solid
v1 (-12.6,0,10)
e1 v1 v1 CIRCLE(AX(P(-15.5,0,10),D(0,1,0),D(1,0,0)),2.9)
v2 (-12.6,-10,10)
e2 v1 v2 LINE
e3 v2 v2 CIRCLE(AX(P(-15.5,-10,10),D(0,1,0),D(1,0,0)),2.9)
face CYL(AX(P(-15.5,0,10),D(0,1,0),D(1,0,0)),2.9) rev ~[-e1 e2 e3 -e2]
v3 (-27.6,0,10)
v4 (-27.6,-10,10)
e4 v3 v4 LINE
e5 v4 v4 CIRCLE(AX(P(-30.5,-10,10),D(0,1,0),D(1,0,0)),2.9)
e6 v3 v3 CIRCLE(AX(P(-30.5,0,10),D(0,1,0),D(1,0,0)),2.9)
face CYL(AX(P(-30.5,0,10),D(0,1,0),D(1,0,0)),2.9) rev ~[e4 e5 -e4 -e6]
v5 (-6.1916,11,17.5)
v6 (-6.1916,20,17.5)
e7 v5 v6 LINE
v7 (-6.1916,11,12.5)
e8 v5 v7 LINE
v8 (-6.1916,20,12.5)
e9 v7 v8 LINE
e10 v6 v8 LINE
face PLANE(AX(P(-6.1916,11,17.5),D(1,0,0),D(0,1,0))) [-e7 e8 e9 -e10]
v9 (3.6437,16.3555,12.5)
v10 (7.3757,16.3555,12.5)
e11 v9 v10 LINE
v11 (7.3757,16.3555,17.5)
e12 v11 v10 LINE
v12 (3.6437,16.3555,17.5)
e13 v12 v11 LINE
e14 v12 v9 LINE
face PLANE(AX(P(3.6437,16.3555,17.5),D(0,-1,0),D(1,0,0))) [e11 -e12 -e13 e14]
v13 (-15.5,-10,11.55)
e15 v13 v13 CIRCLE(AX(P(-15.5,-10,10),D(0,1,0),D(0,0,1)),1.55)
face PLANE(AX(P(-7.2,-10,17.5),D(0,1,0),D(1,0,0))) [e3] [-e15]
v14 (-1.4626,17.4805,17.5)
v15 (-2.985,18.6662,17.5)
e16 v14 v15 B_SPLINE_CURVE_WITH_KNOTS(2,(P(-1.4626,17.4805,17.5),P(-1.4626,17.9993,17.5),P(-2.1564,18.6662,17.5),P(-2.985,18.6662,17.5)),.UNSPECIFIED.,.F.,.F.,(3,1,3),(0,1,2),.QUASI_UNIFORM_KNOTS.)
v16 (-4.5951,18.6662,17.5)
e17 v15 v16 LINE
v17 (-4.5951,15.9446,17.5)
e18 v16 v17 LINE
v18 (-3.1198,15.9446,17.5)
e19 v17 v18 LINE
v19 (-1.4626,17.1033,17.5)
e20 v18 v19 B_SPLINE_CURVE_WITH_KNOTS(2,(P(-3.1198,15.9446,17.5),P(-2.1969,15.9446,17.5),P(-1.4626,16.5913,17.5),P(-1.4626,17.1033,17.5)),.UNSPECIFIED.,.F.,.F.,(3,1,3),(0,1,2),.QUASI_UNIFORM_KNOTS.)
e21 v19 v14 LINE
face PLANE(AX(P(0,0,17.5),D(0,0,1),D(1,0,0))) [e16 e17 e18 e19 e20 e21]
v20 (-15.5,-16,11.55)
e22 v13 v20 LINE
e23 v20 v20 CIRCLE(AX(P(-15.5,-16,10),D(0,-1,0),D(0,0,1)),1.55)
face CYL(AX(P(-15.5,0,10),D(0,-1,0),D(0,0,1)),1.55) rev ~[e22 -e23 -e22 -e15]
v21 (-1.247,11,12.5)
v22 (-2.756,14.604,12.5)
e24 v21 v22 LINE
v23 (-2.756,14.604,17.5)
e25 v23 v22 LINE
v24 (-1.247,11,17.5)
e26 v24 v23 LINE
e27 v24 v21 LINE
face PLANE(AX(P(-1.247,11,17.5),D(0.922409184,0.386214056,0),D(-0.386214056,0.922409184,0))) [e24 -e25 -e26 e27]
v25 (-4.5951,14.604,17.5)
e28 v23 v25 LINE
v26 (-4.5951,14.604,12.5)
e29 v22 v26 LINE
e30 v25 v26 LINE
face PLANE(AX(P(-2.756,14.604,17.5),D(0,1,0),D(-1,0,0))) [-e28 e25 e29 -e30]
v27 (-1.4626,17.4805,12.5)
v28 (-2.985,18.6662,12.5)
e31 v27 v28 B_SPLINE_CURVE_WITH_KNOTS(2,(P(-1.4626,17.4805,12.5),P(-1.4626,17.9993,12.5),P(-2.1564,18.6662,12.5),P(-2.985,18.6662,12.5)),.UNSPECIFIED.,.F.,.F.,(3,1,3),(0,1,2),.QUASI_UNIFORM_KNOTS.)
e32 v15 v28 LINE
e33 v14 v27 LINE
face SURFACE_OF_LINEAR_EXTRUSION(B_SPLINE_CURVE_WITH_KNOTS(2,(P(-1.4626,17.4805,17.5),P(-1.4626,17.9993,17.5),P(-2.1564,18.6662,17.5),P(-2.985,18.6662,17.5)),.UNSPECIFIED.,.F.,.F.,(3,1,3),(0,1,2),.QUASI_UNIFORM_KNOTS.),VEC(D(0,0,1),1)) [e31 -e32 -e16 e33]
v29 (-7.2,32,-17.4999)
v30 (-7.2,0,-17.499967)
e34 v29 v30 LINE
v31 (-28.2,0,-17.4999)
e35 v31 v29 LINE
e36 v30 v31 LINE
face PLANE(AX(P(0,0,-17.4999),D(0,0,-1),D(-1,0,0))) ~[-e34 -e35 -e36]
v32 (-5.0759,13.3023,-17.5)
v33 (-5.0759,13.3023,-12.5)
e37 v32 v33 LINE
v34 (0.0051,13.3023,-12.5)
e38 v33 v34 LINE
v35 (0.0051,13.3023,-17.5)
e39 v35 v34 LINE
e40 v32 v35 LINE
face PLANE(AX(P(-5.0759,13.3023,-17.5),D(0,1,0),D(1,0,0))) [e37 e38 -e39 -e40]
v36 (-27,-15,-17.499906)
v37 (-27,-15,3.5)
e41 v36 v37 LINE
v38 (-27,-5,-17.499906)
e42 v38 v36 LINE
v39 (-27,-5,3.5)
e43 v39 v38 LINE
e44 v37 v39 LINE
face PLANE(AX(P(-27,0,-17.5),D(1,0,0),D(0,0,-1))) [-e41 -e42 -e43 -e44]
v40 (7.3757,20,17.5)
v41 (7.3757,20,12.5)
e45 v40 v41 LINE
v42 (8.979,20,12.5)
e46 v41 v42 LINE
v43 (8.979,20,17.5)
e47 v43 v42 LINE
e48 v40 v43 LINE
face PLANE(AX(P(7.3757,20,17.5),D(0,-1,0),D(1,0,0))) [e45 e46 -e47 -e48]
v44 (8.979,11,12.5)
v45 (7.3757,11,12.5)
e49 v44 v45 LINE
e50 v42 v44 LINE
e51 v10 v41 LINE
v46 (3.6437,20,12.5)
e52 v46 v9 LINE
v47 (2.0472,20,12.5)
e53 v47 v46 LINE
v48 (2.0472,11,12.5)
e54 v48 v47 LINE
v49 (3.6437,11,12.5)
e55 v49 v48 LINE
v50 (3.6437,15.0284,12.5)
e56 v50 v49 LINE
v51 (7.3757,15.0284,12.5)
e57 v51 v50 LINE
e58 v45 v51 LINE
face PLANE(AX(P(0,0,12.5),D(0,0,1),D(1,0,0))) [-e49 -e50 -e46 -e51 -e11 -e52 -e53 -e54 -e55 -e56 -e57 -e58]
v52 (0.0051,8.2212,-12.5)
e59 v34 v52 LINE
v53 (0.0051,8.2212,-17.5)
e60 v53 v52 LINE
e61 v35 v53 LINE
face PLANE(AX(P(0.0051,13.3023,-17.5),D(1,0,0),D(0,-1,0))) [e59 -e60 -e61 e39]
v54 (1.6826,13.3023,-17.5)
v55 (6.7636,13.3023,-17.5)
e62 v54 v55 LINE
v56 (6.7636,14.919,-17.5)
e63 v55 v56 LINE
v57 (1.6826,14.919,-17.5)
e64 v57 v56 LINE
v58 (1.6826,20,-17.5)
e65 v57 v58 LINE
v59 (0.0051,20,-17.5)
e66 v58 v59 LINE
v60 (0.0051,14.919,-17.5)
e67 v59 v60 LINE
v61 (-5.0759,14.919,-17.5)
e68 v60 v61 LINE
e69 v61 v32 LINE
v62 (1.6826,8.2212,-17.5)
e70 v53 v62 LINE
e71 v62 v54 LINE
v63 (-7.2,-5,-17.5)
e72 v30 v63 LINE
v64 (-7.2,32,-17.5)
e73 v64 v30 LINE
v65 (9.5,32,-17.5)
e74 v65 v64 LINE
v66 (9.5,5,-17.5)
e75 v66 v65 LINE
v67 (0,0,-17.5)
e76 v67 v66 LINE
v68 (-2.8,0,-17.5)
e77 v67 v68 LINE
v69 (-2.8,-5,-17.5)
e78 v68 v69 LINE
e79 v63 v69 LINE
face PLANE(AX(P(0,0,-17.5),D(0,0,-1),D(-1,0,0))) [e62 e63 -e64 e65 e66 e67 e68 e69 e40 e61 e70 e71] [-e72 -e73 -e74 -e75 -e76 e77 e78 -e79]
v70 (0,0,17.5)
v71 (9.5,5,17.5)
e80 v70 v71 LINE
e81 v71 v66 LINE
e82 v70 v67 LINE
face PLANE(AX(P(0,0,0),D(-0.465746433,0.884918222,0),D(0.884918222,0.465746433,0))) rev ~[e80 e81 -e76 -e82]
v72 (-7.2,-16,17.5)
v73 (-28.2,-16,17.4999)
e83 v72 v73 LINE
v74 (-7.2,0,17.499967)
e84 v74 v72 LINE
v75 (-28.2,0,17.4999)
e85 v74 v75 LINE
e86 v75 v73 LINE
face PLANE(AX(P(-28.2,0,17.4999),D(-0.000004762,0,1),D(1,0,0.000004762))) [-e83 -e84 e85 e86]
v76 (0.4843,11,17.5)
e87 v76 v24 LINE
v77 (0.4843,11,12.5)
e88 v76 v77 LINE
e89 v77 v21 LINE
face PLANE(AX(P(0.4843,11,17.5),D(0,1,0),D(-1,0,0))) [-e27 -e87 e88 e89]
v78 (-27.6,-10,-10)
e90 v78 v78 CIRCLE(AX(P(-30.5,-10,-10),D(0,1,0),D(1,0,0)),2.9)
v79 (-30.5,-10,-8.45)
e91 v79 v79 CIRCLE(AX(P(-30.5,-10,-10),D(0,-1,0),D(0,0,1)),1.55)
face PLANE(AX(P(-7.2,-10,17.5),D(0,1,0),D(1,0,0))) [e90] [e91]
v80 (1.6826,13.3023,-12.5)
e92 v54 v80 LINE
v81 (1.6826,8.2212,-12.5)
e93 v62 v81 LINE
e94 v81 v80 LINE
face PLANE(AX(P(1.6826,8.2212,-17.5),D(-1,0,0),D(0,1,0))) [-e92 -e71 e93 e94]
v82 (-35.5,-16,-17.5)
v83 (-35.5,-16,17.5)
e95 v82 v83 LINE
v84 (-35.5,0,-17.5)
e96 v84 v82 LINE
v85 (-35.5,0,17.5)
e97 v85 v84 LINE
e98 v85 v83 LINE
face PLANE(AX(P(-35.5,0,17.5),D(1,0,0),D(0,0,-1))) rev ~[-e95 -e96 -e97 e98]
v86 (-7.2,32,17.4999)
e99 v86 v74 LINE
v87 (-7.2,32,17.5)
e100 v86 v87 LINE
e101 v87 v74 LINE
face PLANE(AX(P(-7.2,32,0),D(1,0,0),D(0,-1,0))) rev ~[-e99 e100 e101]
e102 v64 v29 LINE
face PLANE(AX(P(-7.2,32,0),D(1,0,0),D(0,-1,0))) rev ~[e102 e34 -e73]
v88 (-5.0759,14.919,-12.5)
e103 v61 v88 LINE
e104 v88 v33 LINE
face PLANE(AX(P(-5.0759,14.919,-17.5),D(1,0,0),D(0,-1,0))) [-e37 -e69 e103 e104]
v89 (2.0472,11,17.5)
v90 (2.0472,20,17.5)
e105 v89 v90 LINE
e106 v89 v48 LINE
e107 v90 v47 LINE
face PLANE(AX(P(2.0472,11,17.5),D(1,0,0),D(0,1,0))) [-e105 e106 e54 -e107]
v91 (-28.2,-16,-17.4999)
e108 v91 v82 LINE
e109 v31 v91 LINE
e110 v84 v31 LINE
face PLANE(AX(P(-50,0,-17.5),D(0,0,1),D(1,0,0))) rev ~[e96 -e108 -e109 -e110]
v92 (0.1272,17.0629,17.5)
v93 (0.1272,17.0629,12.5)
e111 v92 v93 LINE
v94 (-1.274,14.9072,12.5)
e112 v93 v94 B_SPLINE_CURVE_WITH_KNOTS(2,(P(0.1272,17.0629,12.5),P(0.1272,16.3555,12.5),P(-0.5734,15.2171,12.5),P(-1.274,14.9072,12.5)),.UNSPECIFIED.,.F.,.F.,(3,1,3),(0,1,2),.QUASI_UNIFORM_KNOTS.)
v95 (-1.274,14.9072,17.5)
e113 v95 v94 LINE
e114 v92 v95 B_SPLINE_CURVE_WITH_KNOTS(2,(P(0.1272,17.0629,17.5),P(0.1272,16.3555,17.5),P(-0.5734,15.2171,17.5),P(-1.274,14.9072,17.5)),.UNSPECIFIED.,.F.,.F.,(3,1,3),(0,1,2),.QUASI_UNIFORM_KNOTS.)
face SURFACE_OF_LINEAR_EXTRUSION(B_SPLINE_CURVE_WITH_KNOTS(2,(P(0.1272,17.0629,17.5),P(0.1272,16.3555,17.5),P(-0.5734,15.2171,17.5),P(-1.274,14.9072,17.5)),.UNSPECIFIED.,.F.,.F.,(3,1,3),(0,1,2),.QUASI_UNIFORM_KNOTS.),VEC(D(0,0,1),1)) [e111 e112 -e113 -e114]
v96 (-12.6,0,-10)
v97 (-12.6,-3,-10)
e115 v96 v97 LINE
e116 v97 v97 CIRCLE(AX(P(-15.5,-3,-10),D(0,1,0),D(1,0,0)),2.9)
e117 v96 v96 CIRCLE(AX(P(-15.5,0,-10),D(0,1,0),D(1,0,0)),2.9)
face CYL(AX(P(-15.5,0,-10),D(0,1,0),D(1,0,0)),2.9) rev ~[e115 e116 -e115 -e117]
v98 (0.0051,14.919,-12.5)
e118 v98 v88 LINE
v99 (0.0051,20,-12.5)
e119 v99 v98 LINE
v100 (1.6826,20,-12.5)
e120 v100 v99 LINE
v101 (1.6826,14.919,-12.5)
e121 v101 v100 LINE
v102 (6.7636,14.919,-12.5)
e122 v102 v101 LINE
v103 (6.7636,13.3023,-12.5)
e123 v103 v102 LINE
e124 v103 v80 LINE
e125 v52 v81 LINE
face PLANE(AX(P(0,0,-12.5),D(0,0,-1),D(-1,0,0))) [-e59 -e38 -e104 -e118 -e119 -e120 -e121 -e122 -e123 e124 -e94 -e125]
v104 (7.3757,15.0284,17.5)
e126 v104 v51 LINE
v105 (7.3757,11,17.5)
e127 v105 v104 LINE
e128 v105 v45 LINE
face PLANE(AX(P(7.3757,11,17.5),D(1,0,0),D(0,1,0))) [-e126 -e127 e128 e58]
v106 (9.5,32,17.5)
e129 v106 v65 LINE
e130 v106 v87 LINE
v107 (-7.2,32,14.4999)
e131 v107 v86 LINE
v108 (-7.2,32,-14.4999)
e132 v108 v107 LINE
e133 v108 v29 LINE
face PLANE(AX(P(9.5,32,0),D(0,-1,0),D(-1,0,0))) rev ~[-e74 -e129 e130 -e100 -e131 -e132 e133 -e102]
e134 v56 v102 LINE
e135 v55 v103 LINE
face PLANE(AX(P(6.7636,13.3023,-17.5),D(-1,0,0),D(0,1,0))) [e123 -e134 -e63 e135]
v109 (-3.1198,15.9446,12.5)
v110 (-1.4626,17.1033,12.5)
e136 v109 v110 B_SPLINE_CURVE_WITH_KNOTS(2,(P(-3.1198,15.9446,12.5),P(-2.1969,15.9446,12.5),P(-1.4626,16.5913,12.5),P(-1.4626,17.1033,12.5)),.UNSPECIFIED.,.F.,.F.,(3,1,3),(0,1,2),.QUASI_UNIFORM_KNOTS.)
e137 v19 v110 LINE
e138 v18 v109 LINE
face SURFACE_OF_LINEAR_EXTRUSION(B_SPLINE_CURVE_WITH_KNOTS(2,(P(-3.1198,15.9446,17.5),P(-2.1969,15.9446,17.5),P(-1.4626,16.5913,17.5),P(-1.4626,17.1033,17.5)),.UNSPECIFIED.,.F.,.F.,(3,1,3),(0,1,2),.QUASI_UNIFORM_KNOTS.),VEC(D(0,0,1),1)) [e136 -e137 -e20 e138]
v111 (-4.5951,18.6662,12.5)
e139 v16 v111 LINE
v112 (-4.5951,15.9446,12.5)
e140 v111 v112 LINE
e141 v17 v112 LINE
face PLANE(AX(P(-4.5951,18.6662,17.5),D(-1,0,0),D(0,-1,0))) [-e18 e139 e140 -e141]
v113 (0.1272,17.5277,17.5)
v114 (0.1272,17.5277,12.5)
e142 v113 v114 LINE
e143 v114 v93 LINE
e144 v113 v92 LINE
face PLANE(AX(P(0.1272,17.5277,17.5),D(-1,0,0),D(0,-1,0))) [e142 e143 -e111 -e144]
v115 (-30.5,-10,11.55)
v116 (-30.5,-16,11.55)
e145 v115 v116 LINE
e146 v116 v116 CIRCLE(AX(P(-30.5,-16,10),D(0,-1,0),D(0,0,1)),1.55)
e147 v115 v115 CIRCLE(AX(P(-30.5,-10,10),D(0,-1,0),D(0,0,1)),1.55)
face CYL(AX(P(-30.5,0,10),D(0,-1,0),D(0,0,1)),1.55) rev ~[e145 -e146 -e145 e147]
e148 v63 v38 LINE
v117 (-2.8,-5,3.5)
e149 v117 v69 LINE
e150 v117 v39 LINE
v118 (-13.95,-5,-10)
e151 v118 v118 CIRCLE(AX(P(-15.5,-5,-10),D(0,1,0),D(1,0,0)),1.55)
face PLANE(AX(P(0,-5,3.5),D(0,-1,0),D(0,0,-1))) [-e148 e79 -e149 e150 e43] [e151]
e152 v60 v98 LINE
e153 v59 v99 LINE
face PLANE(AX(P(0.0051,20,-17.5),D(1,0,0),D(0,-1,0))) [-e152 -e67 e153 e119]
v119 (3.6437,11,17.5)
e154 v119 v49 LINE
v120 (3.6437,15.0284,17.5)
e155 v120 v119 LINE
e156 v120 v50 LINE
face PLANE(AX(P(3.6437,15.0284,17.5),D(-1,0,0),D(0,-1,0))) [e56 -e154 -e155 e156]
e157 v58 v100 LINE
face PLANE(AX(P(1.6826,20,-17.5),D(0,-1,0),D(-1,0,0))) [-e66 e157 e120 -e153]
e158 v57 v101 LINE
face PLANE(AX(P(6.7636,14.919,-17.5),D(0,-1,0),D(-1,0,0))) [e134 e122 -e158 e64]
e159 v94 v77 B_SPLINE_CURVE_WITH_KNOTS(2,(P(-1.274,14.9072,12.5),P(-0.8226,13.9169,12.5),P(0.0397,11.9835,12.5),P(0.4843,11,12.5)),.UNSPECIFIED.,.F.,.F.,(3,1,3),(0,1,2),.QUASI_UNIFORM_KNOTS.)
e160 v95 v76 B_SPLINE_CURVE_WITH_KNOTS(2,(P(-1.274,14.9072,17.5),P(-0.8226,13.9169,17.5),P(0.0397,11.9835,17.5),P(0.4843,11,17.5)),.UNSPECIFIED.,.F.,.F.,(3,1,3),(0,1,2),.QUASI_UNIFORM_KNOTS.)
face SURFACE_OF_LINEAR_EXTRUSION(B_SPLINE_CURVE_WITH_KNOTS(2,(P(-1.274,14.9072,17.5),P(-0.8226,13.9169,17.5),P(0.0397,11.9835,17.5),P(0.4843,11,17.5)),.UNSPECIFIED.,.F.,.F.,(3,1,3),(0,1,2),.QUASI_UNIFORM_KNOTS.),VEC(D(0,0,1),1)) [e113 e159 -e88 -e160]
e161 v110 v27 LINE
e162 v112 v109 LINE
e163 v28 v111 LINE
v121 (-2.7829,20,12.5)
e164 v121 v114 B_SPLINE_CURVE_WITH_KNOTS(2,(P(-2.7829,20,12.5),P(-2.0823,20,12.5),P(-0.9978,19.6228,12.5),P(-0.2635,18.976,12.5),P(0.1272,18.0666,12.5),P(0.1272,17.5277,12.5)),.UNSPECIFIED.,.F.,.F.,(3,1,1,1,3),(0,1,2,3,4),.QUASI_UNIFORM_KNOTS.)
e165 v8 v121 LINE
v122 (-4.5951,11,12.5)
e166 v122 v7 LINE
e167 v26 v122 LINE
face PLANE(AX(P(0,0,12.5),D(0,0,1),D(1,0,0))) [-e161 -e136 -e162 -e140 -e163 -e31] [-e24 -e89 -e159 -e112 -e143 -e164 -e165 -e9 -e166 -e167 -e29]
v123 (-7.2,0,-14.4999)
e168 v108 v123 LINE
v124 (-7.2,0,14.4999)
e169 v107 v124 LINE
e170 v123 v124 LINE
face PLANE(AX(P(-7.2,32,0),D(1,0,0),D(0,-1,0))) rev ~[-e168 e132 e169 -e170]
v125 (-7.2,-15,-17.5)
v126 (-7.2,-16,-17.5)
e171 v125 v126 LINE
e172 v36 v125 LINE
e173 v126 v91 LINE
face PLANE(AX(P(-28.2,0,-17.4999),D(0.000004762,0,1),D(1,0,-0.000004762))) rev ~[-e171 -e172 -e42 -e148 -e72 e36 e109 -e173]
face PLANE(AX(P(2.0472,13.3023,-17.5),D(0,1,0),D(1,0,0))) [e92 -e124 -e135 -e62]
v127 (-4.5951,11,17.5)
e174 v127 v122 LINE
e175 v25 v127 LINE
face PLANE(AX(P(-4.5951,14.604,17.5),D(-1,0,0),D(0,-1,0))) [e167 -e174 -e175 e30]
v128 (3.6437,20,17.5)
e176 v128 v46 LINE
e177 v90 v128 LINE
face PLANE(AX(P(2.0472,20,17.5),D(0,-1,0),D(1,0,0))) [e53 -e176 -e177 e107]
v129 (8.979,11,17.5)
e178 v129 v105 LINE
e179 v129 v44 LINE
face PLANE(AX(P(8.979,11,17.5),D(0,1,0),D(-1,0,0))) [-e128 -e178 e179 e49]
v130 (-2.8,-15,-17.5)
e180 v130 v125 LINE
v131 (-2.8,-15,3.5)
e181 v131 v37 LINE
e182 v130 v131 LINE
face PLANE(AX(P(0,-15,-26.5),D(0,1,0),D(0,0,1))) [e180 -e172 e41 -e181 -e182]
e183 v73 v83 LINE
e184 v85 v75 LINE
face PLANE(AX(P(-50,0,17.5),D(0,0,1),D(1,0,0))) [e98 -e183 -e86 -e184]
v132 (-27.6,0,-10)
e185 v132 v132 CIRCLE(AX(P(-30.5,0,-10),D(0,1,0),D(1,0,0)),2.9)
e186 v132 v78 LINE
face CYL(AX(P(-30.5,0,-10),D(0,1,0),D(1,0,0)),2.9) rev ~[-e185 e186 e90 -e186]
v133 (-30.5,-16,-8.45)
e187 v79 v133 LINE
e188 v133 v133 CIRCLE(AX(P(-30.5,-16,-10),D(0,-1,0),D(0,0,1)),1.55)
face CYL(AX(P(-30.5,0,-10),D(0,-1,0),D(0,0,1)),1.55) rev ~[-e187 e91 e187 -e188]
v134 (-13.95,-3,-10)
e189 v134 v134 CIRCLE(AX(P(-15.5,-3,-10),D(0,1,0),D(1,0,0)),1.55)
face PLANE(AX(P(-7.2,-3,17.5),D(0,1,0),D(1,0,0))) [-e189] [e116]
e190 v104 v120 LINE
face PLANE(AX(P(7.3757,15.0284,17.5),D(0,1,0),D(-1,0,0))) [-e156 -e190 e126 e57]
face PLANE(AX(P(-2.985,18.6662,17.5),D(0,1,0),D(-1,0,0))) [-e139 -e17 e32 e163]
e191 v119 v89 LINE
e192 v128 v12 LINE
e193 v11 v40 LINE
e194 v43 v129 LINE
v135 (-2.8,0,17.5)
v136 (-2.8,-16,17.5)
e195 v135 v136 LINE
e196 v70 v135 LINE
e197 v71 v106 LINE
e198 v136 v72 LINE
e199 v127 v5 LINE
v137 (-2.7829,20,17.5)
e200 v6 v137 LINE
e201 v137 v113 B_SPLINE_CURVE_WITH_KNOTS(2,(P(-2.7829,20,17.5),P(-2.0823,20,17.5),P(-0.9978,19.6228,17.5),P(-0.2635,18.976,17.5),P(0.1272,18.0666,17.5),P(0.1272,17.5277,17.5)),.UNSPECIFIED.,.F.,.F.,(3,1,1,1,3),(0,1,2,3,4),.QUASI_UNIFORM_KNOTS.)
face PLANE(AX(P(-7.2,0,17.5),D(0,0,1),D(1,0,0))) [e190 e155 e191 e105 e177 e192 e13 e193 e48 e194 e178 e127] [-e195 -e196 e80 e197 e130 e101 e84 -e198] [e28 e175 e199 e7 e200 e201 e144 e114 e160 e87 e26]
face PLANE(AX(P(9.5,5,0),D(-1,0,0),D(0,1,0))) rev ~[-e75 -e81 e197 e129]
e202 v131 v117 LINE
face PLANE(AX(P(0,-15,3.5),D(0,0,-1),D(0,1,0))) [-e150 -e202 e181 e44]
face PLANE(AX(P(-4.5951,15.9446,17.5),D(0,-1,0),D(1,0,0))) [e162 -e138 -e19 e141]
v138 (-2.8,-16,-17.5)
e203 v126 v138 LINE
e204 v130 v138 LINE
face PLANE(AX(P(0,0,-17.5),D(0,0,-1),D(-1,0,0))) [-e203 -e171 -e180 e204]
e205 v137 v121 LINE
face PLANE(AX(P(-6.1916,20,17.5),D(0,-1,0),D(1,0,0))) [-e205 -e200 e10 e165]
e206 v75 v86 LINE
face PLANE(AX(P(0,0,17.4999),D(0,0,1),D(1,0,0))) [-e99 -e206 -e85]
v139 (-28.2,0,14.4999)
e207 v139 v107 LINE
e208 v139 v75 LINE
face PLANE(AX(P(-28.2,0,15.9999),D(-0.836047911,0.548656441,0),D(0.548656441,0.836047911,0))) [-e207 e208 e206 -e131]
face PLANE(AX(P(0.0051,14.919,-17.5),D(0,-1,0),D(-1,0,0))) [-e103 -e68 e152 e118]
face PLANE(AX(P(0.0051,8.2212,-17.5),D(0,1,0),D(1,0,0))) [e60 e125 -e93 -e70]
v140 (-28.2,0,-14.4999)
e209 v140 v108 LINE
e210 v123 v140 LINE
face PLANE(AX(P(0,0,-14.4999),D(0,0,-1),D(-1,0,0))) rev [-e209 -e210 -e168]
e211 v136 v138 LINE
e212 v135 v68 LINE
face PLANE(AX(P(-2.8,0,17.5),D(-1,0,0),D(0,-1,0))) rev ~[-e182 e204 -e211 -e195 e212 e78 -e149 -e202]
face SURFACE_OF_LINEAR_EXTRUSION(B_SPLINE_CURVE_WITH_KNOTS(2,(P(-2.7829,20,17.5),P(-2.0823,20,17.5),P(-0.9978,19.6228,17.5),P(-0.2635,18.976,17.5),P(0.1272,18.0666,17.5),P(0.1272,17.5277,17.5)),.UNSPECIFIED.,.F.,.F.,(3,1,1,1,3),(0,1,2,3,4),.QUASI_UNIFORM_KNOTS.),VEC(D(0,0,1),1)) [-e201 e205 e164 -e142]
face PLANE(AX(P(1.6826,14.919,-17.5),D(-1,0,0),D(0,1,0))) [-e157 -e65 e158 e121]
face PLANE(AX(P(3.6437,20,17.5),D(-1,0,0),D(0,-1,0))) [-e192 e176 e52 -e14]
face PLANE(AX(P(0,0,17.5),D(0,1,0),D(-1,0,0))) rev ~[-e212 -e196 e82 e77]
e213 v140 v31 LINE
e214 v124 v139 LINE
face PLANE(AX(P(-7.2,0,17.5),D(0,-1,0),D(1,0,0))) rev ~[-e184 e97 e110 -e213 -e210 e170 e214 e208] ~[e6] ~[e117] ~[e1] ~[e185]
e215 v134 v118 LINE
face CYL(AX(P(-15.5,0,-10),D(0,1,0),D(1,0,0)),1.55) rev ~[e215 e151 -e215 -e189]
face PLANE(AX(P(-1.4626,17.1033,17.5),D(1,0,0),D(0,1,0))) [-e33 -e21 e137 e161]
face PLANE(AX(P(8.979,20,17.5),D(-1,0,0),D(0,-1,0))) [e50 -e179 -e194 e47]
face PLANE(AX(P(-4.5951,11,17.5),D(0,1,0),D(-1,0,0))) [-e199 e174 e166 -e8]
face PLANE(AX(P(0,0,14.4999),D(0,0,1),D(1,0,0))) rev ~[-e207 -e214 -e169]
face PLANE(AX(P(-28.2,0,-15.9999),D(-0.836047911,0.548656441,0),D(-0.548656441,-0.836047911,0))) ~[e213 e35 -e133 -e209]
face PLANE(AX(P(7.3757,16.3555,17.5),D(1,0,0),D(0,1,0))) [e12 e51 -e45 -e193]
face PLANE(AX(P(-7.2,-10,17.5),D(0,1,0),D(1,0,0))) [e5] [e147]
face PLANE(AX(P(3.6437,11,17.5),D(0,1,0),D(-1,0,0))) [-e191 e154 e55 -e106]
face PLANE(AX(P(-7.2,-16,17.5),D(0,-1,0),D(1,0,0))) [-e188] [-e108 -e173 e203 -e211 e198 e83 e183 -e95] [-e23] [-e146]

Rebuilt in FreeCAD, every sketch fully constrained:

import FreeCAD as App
import Part
import Sketcher
from FreeCAD import Vector
Q = App.Units.Quantity

doc = App.newDocument("Part")
body = doc.addObject("PartDesign::Body", "Body")

sketch1 = doc.addObject("Sketcher::SketchObject", "Sketch")
body.addObject(sketch1)
sketch1.AttachmentSupport = (doc.XY_Plane, [""])
sketch1.MapMode = "FlatFace"
sketch1.addGeometry([
    Part.LineSegment(Vector(10, 32, 0), Vector(-7, 32, 0)),
    Part.LineSegment(Vector(-7, 32, 0), Vector(-7, 0, 0)),
    Part.LineSegment(Vector(-7, 0, 0), Vector(0, 0, 0)),
    Part.LineSegment(Vector(0, 0, 0), Vector(10, 5, 0)),
    Part.LineSegment(Vector(10, 5, 0), Vector(10, 32, 0)),
], False)
sketch1.addConstraint([
    Sketcher.Constraint("Coincident", 0, 2, 1, 1),
    Sketcher.Constraint("Coincident", 1, 2, 2, 1),
    Sketcher.Constraint("Coincident", 2, 2, 3, 1),
    Sketcher.Constraint("Coincident", 3, 2, 4, 1),
    Sketcher.Constraint("Coincident", 4, 2, 0, 1),
    Sketcher.Constraint("Horizontal", 0),
    Sketcher.Constraint("Vertical", 1),
    Sketcher.Constraint("Horizontal", 2),
    Sketcher.Constraint("Vertical", 4),
    Sketcher.Constraint("Coincident", 2, 2, -1, 1),
    Sketcher.Constraint("DistanceY", 1, 2, 1, 1, Q("32 mm")),
    Sketcher.Constraint("DistanceY", 4, 1, 4, 2, Q("27 mm")),
    Sketcher.Constraint("DistanceX", 2, 1, 2, 2, Q("7.2 mm")),
    Sketcher.Constraint("DistanceX", -1, 1, 3, 2, Q("9.5 mm")),
])
pad1 = doc.addObject("PartDesign::Pad", "Pad")
body.addObject(pad1)
pad1.Profile = sketch1
pad1.Length = 35
pad1.Midplane = True

sketch2 = doc.addObject("Sketcher::SketchObject", "Sketch001")
body.addObject(sketch2)
sketch2.AttachmentSupport = (doc.XY_Plane, [""])
sketch2.MapMode = "FlatFace"
sketch2.AttachmentOffset = App.Placement(Vector(0, 0, 15.9999), App.Rotation())
sketch2.addGeometry([
    Part.LineSegment(Vector(-7, 0, 0), Vector(-7, 32, 0)),
    Part.LineSegment(Vector(-7, 32, 0), Vector(-28, 0, 0)),
    Part.LineSegment(Vector(-28, 0, 0), Vector(-7, 0, 0)),
], False)
sketch2.addConstraint([
    Sketcher.Constraint("Coincident", 0, 2, 1, 1),
    Sketcher.Constraint("Coincident", 1, 2, 2, 1),
    Sketcher.Constraint("Coincident", 2, 2, 0, 1),
    Sketcher.Constraint("Vertical", 0),
    Sketcher.Constraint("Horizontal", 2),
    Sketcher.Constraint("PointOnObject", 1, 2, -1),
    Sketcher.Constraint("DistanceX", 2, 1, 2, 2, Q("21 mm")),
    Sketcher.Constraint("DistanceY", 0, 1, 0, 2, Q("32 mm")),
    Sketcher.Constraint("DistanceX", 0, 2, -1, 1, Q("7.2 mm")),
])
pad2 = doc.addObject("PartDesign::Pad", "Pad001")
body.addObject(pad2)
pad2.Profile = sketch2
pad2.Length = 3
pad2.Midplane = True
doc.recompute()

mirrored = doc.addObject("PartDesign::Mirrored", "Mirrored")
body.addObject(mirrored)
mirrored.Originals = [pad2]
mirrored.MirrorPlane = (doc.XY_Plane, [""])
body.Tip = mirrored

sketch3 = doc.addObject("Sketcher::SketchObject", "Sketch002")
body.addObject(sketch3)
sketch3.AttachmentSupport = (doc.XZ_Plane, [""])
sketch3.MapMode = "FlatFace"
sketch3.addGeometry([
    Part.LineSegment(Vector(-25, 28, 0), Vector(-50, 20, 0)),
    Part.LineSegment(Vector(-50, 20, 0), Vector(-50, -20, 0)),
    Part.LineSegment(Vector(-50, -20, 0), Vector(-25, -28, 0)),
    Part.LineSegment(Vector(-25, -28, 0), Vector(0, -28, 0)),
    Part.LineSegment(Vector(0, -28, 0), Vector(0, 28, 0)),
    Part.LineSegment(Vector(0, 28, 0), Vector(-25, 28, 0)),
], False)
sketch3.addConstraint([
    Sketcher.Constraint("Coincident", 0, 2, 1, 1),
    Sketcher.Constraint("Coincident", 1, 2, 2, 1),
    Sketcher.Constraint("Coincident", 2, 2, 3, 1),
    Sketcher.Constraint("Coincident", 3, 2, 4, 1),
    Sketcher.Constraint("Coincident", 4, 2, 5, 1),
    Sketcher.Constraint("Coincident", 5, 2, 0, 1),
    Sketcher.Constraint("Vertical", 1),
    Sketcher.Constraint("Horizontal", 3),
    Sketcher.Constraint("Vertical", 4),
    Sketcher.Constraint("Horizontal", 5),
    Sketcher.Constraint("Symmetric", 3, 2, 4, 2, -1, 1),
    Sketcher.Constraint("Vertical", 2, 2, 5, 2),
    Sketcher.Constraint("Equal", 0, 2),
    Sketcher.Constraint("DistanceY", 1, 2, 1, 1, Q("39 mm")),
    Sketcher.Constraint("DistanceY", 4, 1, 4, 2, Q("57 mm")),
    Sketcher.Constraint("DistanceX", 0, 2, -1, 1, Q("50 mm")),
    Sketcher.Constraint("Angle", 0, Q("-160 deg")),
])
pad3 = doc.addObject("PartDesign::Pad", "Pad002")
body.addObject(pad3)
pad3.Profile = sketch3
pad3.Length = 16

sketch4 = doc.addObject("Sketcher::SketchObject", "Sketch003")
body.addObject(sketch4)
sketch4.AttachmentSupport = (doc.XZ_Plane, [""])
sketch4.MapMode = "FlatFace"
sketch4.addGeometry([
    Part.Circle(Vector(-30.5, 10, 0), Vector(0, 0, 1), 1.6),
    Part.Circle(Vector(-15.5, 10, 0), Vector(0, 0, 1), 1.6),
    Part.Circle(Vector(-30.5, -10, 0), Vector(0, 0, 1), 1.6),
], False)
sketch4.addConstraint([
    Sketcher.Constraint("Equal", 0, 1),
    Sketcher.Constraint("Equal", 1, 2),
    Sketcher.Constraint("Symmetric", 0, 3, 2, 3, -1),
    Sketcher.Constraint("Horizontal", 0, 3, 1, 3),
    Sketcher.Constraint("Diameter", 0, Q("3.1 mm")),
    Sketcher.Constraint("DistanceY", -1, 1, 0, 3, Q("10 mm")),
    Sketcher.Constraint("DistanceX", 0, 3, 1, 3, Q("15 mm")),
    Sketcher.Constraint("DistanceX", 0, 3, -1, 1, Q("30.5 mm")),
])
doc.recompute()
hole = doc.addObject("PartDesign::Hole", "Hole")
body.addObject(hole)
hole.Profile = sketch4
hole.ThreadType = "None"
hole.Diameter = 3.1
hole.DepthType = "ThroughAll"
hole.Reversed = True

sketch5 = doc.addObject("Sketcher::SketchObject", "Sketch004")
body.addObject(sketch5)
sketch5.AttachmentSupport = (doc.YZ_Plane, [""])
sketch5.MapMode = "FlatFace"
sketch5.addGeometry([
    Part.LineSegment(Vector(-5, -26, 0), Vector(-5, 4, 0)),
    Part.LineSegment(Vector(-5, 4, 0), Vector(-15, 4, 0)),
    Part.LineSegment(Vector(-15, 4, 0), Vector(-15, -26, 0)),
    Part.LineSegment(Vector(-15, -26, 0), Vector(-5, -26, 0)),
], False)
sketch5.addConstraint([
    Sketcher.Constraint("Coincident", 0, 2, 1, 1),
    Sketcher.Constraint("Coincident", 1, 2, 2, 1),
    Sketcher.Constraint("Coincident", 2, 2, 3, 1),
    Sketcher.Constraint("Coincident", 3, 2, 0, 1),
    Sketcher.Constraint("Vertical", 0),
    Sketcher.Constraint("Horizontal", 1),
    Sketcher.Constraint("Vertical", 2),
    Sketcher.Constraint("Horizontal", 3),
    Sketcher.Constraint("DistanceX", 1, 2, 1, 1, Q("10 mm")),
    Sketcher.Constraint("DistanceY", 0, 1, 0, 2, Q("30 mm")),
    Sketcher.Constraint("DistanceX", 0, 2, -1, 1, Q("5 mm")),
    Sketcher.Constraint("DistanceY", -1, 1, 0, 2, Q("3.5 mm")),
])
pocket1 = doc.addObject("PartDesign::Pocket", "Pocket")
body.addObject(pocket1)
pocket1.Profile = sketch5
pocket1.Length = 27

sketch6 = doc.addObject("Sketcher::SketchObject", "Sketch005")
body.addObject(sketch6)
sketch6.AttachmentSupport = (doc.XZ_Plane, [""])
sketch6.MapMode = "FlatFace"
sketch6.addGeometry(Part.Circle(Vector(-15.5, -10, 0), Vector(0, 0, 1), 2.9), False)
sketch6.addConstraint([
    Sketcher.Constraint("Diameter", 0, Q("5.8 mm")),
    Sketcher.Constraint("DistanceY", 0, 3, -1, 1, Q("10 mm")),
    Sketcher.Constraint("DistanceX", 0, 3, -1, 1, Q("15.5 mm")),
])
pocket2 = doc.addObject("PartDesign::Pocket", "Pocket001")
body.addObject(pocket2)
pocket2.Profile = sketch6
pocket2.Length = 3
pocket2.Reversed = True

sketch7 = doc.addObject("Sketcher::SketchObject", "Sketch006")
body.addObject(sketch7)
sketch7.AttachmentSupport = (doc.XY_Plane, [""])
sketch7.MapMode = "FlatFace"
sketch7.AttachmentOffset = App.Placement(Vector(0, 0, 17.5), App.Rotation())
sketch7.addGeometry([
    Part.LineSegment(Vector(-4.5951, 14.604, 0), Vector(-2.756, 14.604, 0)),
    Part.LineSegment(Vector(-2.756, 14.604, 0), Vector(-1.247, 11, 0)),
    Part.LineSegment(Vector(-1.247, 11, 0), Vector(0.4843, 11, 0)),
    Part.BSplineCurve([Vector(-1.274, 14.9072, 0), Vector(-0.8226, 13.9169, 0), Vector(0.0397, 11.9835, 0), Vector(0.4843, 11, 0)], [3, 1, 3], [0, 1, 2], False, 2, [1, 1, 1, 1], False),
    Part.BSplineCurve([Vector(0.1272, 17.0629, 0), Vector(0.1272, 16.3555, 0), Vector(-0.5734, 15.2171, 0), Vector(-1.274, 14.9072, 0)], [3, 1, 3], [0, 1, 2], False, 2, [1, 1, 1, 1], False),
    Part.LineSegment(Vector(0.1272, 17.0629, 0), Vector(0.1272, 17.5277, 0)),
    Part.BSplineCurve([Vector(-2.7829, 20, 0), Vector(-2.0823, 20, 0), Vector(-0.9978, 19.6228, 0), Vector(-0.2635, 18.976, 0), Vector(0.1272, 18.0666, 0), Vector(0.1272, 17.5277, 0)], [3, 1, 1, 1, 3], [0, 1, 2, 3, 4], False, 2, [1, 1, 1, 1, 1, 1], False),
    Part.LineSegment(Vector(-2.7829, 20, 0), Vector(-6.1916, 20, 0)),
    Part.LineSegment(Vector(-6.1916, 20, 0), Vector(-6.1916, 11, 0)),
    Part.LineSegment(Vector(-6.1916, 11, 0), Vector(-4.5951, 11, 0)),
    Part.LineSegment(Vector(-4.5951, 11, 0), Vector(-4.5951, 14.604, 0)),
    Part.LineSegment(Vector(-4.5951, 15.9446, 0), Vector(-4.5951, 18.6662, 0)),
    Part.LineSegment(Vector(-4.5951, 18.6662, 0), Vector(-2.985, 18.6662, 0)),
    Part.BSplineCurve([Vector(-1.4626, 17.4805, 0), Vector(-1.4626, 17.9993, 0), Vector(-2.1564, 18.6662, 0), Vector(-2.985, 18.6662, 0)], [3, 1, 3], [0, 1, 2], False, 2, [1, 1, 1, 1], False),
    Part.LineSegment(Vector(-1.4626, 17.4805, 0), Vector(-1.4626, 17.1033, 0)),
    Part.BSplineCurve([Vector(-3.1198, 15.9446, 0), Vector(-2.1969, 15.9446, 0), Vector(-1.4626, 16.5913, 0), Vector(-1.4626, 17.1033, 0)], [3, 1, 3], [0, 1, 2], False, 2, [1, 1, 1, 1], False),
    Part.LineSegment(Vector(-3.1198, 15.9446, 0), Vector(-4.5951, 15.9446, 0)),
    Part.LineSegment(Vector(3.6437, 15.0284, 0), Vector(7.3757, 15.0284, 0)),
    Part.LineSegment(Vector(7.3757, 15.0284, 0), Vector(7.3757, 11, 0)),
    Part.LineSegment(Vector(7.3757, 11, 0), Vector(8.979, 11, 0)),
    Part.LineSegment(Vector(8.979, 11, 0), Vector(8.979, 20, 0)),
    Part.LineSegment(Vector(8.979, 20, 0), Vector(7.3757, 20, 0)),
    Part.LineSegment(Vector(7.3757, 20, 0), Vector(7.3757, 16.3555, 0)),
    Part.LineSegment(Vector(7.3757, 16.3555, 0), Vector(3.6437, 16.3555, 0)),
    Part.LineSegment(Vector(3.6437, 16.3555, 0), Vector(3.6437, 20, 0)),
    Part.LineSegment(Vector(3.6437, 20, 0), Vector(2.0472, 20, 0)),
    Part.LineSegment(Vector(2.0472, 20, 0), Vector(2.0472, 11, 0)),
    Part.LineSegment(Vector(2.0472, 11, 0), Vector(3.6437, 11, 0)),
    Part.LineSegment(Vector(3.6437, 11, 0), Vector(3.6437, 15.0284, 0)),
], False)
sketch7.addConstraint([
    Sketcher.Constraint("Block", 3),
    Sketcher.Constraint("Block", 4),
    Sketcher.Constraint("Block", 6),
    Sketcher.Constraint("Block", 13),
    Sketcher.Constraint("Block", 15),
    Sketcher.Constraint("Coincident", 0, 2, 1, 1),
    Sketcher.Constraint("Coincident", 1, 2, 2, 1),
    Sketcher.Constraint("Coincident", 2, 2, 3, 2),
    Sketcher.Constraint("Coincident", 4, 1, 5, 1),
    Sketcher.Constraint("Coincident", 5, 2, 6, 2),
    Sketcher.Constraint("Coincident", 6, 1, 7, 1),
    Sketcher.Constraint("Coincident", 7, 2, 8, 1),
    Sketcher.Constraint("Coincident", 8, 2, 9, 1),
    Sketcher.Constraint("Coincident", 9, 2, 10, 1),
    Sketcher.Constraint("Coincident", 10, 2, 0, 1),
    Sketcher.Constraint("Coincident", 11, 2, 12, 1),
    Sketcher.Constraint("Coincident", 12, 2, 13, 2),
    Sketcher.Constraint("Coincident", 13, 1, 14, 1),
    Sketcher.Constraint("Coincident", 14, 2, 15, 2),
    Sketcher.Constraint("Coincident", 15, 1, 16, 1),
    Sketcher.Constraint("Coincident", 16, 2, 11, 1),
    Sketcher.Constraint("Coincident", 17, 2, 18, 1),
    Sketcher.Constraint("Coincident", 18, 2, 19, 1),
    Sketcher.Constraint("Coincident", 19, 2, 20, 1),
    Sketcher.Constraint("Coincident", 20, 2, 21, 1),
    Sketcher.Constraint("Coincident", 21, 2, 22, 1),
    Sketcher.Constraint("Coincident", 22, 2, 23, 1),
    Sketcher.Constraint("Coincident", 23, 2, 24, 1),
    Sketcher.Constraint("Coincident", 24, 2, 25, 1),
    Sketcher.Constraint("Coincident", 25, 2, 26, 1),
    Sketcher.Constraint("Coincident", 26, 2, 27, 1),
    Sketcher.Constraint("Coincident", 27, 2, 28, 1),
    Sketcher.Constraint("Coincident", 28, 2, 17, 1),
    Sketcher.Constraint("Horizontal", 0),
    Sketcher.Constraint("Horizontal", 2),
    Sketcher.Constraint("Horizontal", 7),
    Sketcher.Constraint("Vertical", 8),
    Sketcher.Constraint("Horizontal", 9),
    Sketcher.Constraint("Vertical", 10),
    Sketcher.Constraint("Vertical", 11),
    Sketcher.Constraint("Horizontal", 12),
    Sketcher.Constraint("Horizontal", 16),
    Sketcher.Constraint("Horizontal", 17),
    Sketcher.Constraint("Vertical", 18),
    Sketcher.Constraint("Horizontal", 19),
    Sketcher.Constraint("Vertical", 20),
    Sketcher.Constraint("Horizontal", 21),
    Sketcher.Constraint("Vertical", 22),
    Sketcher.Constraint("Horizontal", 23),
    Sketcher.Constraint("Vertical", 24),
    Sketcher.Constraint("Horizontal", 25),
    Sketcher.Constraint("Vertical", 26),
    Sketcher.Constraint("Horizontal", 27),
    Sketcher.Constraint("Vertical", 28),
    Sketcher.Constraint("DistanceY", 8, 2, 8, 1, Q("9 mm")),
    Sketcher.Constraint("DistanceY", 20, 1, 20, 2, Q("9 mm")),
    Sketcher.Constraint("DistanceY", 26, 2, 26, 1, Q("9 mm")),
    Sketcher.Constraint("DistanceY", -1, 1, 18, 2, Q("11 mm")),
    Sketcher.Constraint("DistanceY", -1, 1, 24, 2, Q("20 mm")),
    Sketcher.Constraint("DistanceX", 12, 1, 12, 2, Q("1.61 mm")),
    Sketcher.Constraint("DistanceX", 0, 1, 0, 2, Q("1.839 mm")),
    Sketcher.Constraint("DistanceX", 17, 1, 17, 2, Q("3.732 mm")),
    Sketcher.Constraint("DistanceX", 23, 2, 23, 1, Q("3.732 mm")),
    Sketcher.Constraint("DistanceY", 10, 1, 10, 2, Q("3.604 mm")),
    Sketcher.Constraint("DistanceX", 10, 2, 12, 2, Q("1.61 mm")),
    Sketcher.Constraint("DistanceX", 5, 2, 25, 2, Q("1.92 mm")),
    Sketcher.Constraint("DistanceX", 2, 1, 2, 2, Q("1.7313 mm")),
    Sketcher.Constraint("DistanceX", 7, 2, 7, 1, Q("3.4087 mm")),
    Sketcher.Constraint("DistanceX", 19, 1, 19, 2, Q("1.6033 mm")),
    Sketcher.Constraint("DistanceX", 21, 2, 21, 1, Q("1.6033 mm")),
    Sketcher.Constraint("DistanceX", 25, 2, 25, 1, Q("1.5965 mm")),
    Sketcher.Constraint("DistanceY", 18, 2, 18, 1, Q("4.0284 mm")),
    Sketcher.Constraint("DistanceY", 22, 2, 22, 1, Q("3.6445 mm")),
])
pocket3 = doc.addObject("PartDesign::Pocket", "Pocket002")
body.addObject(pocket3)
pocket3.Profile = sketch7
pocket3.Length = 5

sketch8 = doc.addObject("Sketcher::SketchObject", "Sketch007")
body.addObject(sketch8)
sketch8.AttachmentSupport = (doc.XY_Plane, [""])
sketch8.MapMode = "FlatFace"
sketch8.AttachmentOffset = App.Placement(Vector(0, 0, -17.5), App.Rotation())
sketch8.addGeometry([
    Part.LineSegment(Vector(6.8, 13.3, 0), Vector(1.7, 13.3, 0)),
    Part.LineSegment(Vector(1.7, 13.3, 0), Vector(1.7, 8.2, 0)),
    Part.LineSegment(Vector(1.7, 8.2, 0), Vector(0, 8.2, 0)),
    Part.LineSegment(Vector(0, 8.2, 0), Vector(0, 13.3, 0)),
    Part.LineSegment(Vector(0, 13.3, 0), Vector(-5.1, 13.3, 0)),
    Part.LineSegment(Vector(-5.1, 13.3, 0), Vector(-5.1, 14.9, 0)),
    Part.LineSegment(Vector(-5.1, 14.9, 0), Vector(0, 14.9, 0)),
    Part.LineSegment(Vector(0, 14.9, 0), Vector(0, 20, 0)),
    Part.LineSegment(Vector(0, 20, 0), Vector(1.7, 20, 0)),
    Part.LineSegment(Vector(1.7, 20, 0), Vector(1.7, 14.9, 0)),
    Part.LineSegment(Vector(1.7, 14.9, 0), Vector(6.8, 14.9, 0)),
    Part.LineSegment(Vector(6.8, 14.9, 0), Vector(6.8, 13.3, 0)),
], False)
sketch8.addConstraint([
    Sketcher.Constraint("Coincident", 0, 2, 1, 1),
    Sketcher.Constraint("Coincident", 1, 2, 2, 1),
    Sketcher.Constraint("Coincident", 2, 2, 3, 1),
    Sketcher.Constraint("Coincident", 3, 2, 4, 1),
    Sketcher.Constraint("Coincident", 4, 2, 5, 1),
    Sketcher.Constraint("Coincident", 5, 2, 6, 1),
    Sketcher.Constraint("Coincident", 6, 2, 7, 1),
    Sketcher.Constraint("Coincident", 7, 2, 8, 1),
    Sketcher.Constraint("Coincident", 8, 2, 9, 1),
    Sketcher.Constraint("Coincident", 9, 2, 10, 1),
    Sketcher.Constraint("Coincident", 10, 2, 11, 1),
    Sketcher.Constraint("Coincident", 11, 2, 0, 1),
    Sketcher.Constraint("Horizontal", 0),
    Sketcher.Constraint("Vertical", 1),
    Sketcher.Constraint("Horizontal", 2),
    Sketcher.Constraint("Vertical", 3),
    Sketcher.Constraint("Horizontal", 4),
    Sketcher.Constraint("Vertical", 5),
    Sketcher.Constraint("Horizontal", 6),
    Sketcher.Constraint("Vertical", 7),
    Sketcher.Constraint("Horizontal", 8),
    Sketcher.Constraint("Vertical", 9),
    Sketcher.Constraint("Horizontal", 10),
    Sketcher.Constraint("Vertical", 11),
    Sketcher.Constraint("Horizontal", 0, 2, 3, 2),
    Sketcher.Constraint("Horizontal", 6, 2, 9, 2),
    Sketcher.Constraint("Vertical", 3, 2, 6, 2),
    Sketcher.Constraint("Vertical", 1, 2, 8, 2),
    Sketcher.Constraint("Equal", 0, 4),
    Sketcher.Constraint("Equal", 10, 1),
    Sketcher.Constraint("Equal", 3, 7),
    Sketcher.Constraint("DistanceY", -1, 1, 7, 2, Q("20 mm")),
    Sketcher.Constraint("DistanceX", 0, 2, 0, 1, Q("5.081 mm")),
    Sketcher.Constraint("DistanceX", 2, 2, 2, 1, Q("1.6775 mm")),
    Sketcher.Constraint("DistanceY", 5, 1, 5, 2, Q("1.6167 mm")),
    Sketcher.Constraint("DistanceX", -1, 1, 2, 2, Q("0.005 mm")),
])
pocket4 = doc.addObject("PartDesign::Pocket", "Pocket003")
body.addObject(pocket4)
pocket4.Profile = sketch8
pocket4.Length = 5
pocket4.Reversed = True

sketch9 = doc.addObject("Sketcher::SketchObject", "Sketch008")
body.addObject(sketch9)
sketch9.AttachmentSupport = (doc.XZ_Plane, [""])
sketch9.MapMode = "FlatFace"
sketch9.addGeometry([
    Part.Circle(Vector(-30.5, -10, 0), Vector(0, 0, 1), 2.9),
    Part.Circle(Vector(-30.5, 10, 0), Vector(0, 0, 1), 2.9),
    Part.Circle(Vector(-15.5, 10, 0), Vector(0, 0, 1), 2.9),
    Part.Circle(Vector(-15.5, 10, 0), Vector(0, 0, 1), 1.6),
], False)
sketch9.addConstraint([
    Sketcher.Constraint("Coincident", 3, 3, 2, 3),
    Sketcher.Constraint("Equal", 0, 1),
    Sketcher.Constraint("Equal", 1, 2),
    Sketcher.Constraint("Symmetric", 0, 3, 1, 3, -1),
    Sketcher.Constraint("Horizontal", 1, 3, 2, 3),
    Sketcher.Constraint("Diameter", 0, Q("5.8 mm")),
    Sketcher.Constraint("Diameter", 3, Q("3.1 mm")),
    Sketcher.Constraint("DistanceY", 0, 3, -1, 1, Q("10 mm")),
    Sketcher.Constraint("DistanceX", 1, 3, 2, 3, Q("15 mm")),
    Sketcher.Constraint("DistanceX", 0, 3, -1, 1, Q("30.5 mm")),
])
pocket5 = doc.addObject("PartDesign::Pocket", "Pocket004")
body.addObject(pocket5)
pocket5.Profile = sketch9
pocket5.Length = 10
pocket5.Reversed = True

sketch10 = doc.addObject("Sketcher::SketchObject", "Sketch009")
body.addObject(sketch10)
sketch10.AttachmentSupport = (doc.XZ_Plane, [""])
sketch10.MapMode = "FlatFace"
sketch10.addGeometry(Part.Circle(Vector(-15.5, -10, 0), Vector(0, 0, 1), 1.6), False)
sketch10.addConstraint([
    Sketcher.Constraint("Diameter", 0, Q("3.1 mm")),
    Sketcher.Constraint("DistanceY", 0, 3, -1, 1, Q("10 mm")),
    Sketcher.Constraint("DistanceX", 0, 3, -1, 1, Q("15.5 mm")),
])
pocket6 = doc.addObject("PartDesign::Pocket", "Pocket005")
body.addObject(pocket6)
pocket6.Profile = sketch10
pocket6.Length = 5
pocket6.Reversed = True

sketch11 = doc.addObject("Sketcher::SketchObject", "Sketch010")
body.addObject(sketch11)
sketch11.AttachmentSupport = (doc.XZ_Plane, [""])
sketch11.MapMode = "FlatFace"
sketch11.addGeometry([
    Part.LineSegment(Vector(-7.2, -17.5, 0), Vector(0, -17.5, 0)),
    Part.LineSegment(Vector(0, -17.5, 0), Vector(0, -28.5, 0)),
    Part.LineSegment(Vector(0, -28.5, 0), Vector(-25.3, -28.5, 0)),
    Part.LineSegment(Vector(-25.3, -28.5, 0), Vector(-50, -19.5, 0)),
    Part.LineSegment(Vector(-50, -19.5, 0), Vector(-50, -17.5, 0)),
    Part.LineSegment(Vector(-50, -17.5, 0), Vector(-28.2, -17.5, 0)),
    Part.LineSegment(Vector(-28.2, -17.5, 0), Vector(-7.2, -17.5, 0)),
    Part.LineSegment(Vector(-28.2, 17.5, 0), Vector(-50, 17.5, 0)),
    Part.LineSegment(Vector(-50, 17.5, 0), Vector(-50, 19.5, 0)),
    Part.LineSegment(Vector(-50, 19.5, 0), Vector(-25.3, 28.5, 0)),
    Part.LineSegment(Vector(-25.3, 28.5, 0), Vector(0, 28.5, 0)),
    Part.LineSegment(Vector(0, 28.5, 0), Vector(0, 17.5, 0)),
    Part.LineSegment(Vector(0, 17.5, 0), Vector(-7.2, 17.5, 0)),
    Part.LineSegment(Vector(-7.2, 17.5, 0), Vector(-28.2, 17.5, 0)),
], False)
sketch11.addConstraint([
    Sketcher.Constraint("Coincident", 0, 2, 1, 1),
    Sketcher.Constraint("Coincident", 1, 2, 2, 1),
    Sketcher.Constraint("Coincident", 2, 2, 3, 1),
    Sketcher.Constraint("Coincident", 3, 2, 4, 1),
    Sketcher.Constraint("Coincident", 4, 2, 5, 1),
    Sketcher.Constraint("Coincident", 5, 2, 6, 1),
    Sketcher.Constraint("Coincident", 6, 2, 0, 1),
    Sketcher.Constraint("Coincident", 7, 2, 8, 1),
    Sketcher.Constraint("Coincident", 8, 2, 9, 1),
    Sketcher.Constraint("Coincident", 9, 2, 10, 1),
    Sketcher.Constraint("Coincident", 10, 2, 11, 1),
    Sketcher.Constraint("Coincident", 11, 2, 12, 1),
    Sketcher.Constraint("Coincident", 12, 2, 13, 1),
    Sketcher.Constraint("Coincident", 13, 2, 7, 1),
    Sketcher.Constraint("Horizontal", 0),
    Sketcher.Constraint("Vertical", 1),
    Sketcher.Constraint("Horizontal", 2),
    Sketcher.Constraint("Vertical", 4),
    Sketcher.Constraint("Horizontal", 5),
    Sketcher.Constraint("Horizontal", 6),
    Sketcher.Constraint("Horizontal", 7),
    Sketcher.Constraint("Vertical", 8),
    Sketcher.Constraint("Horizontal", 10),
    Sketcher.Constraint("Vertical", 11),
    Sketcher.Constraint("Horizontal", 12),
    Sketcher.Constraint("Horizontal", 13),
    Sketcher.Constraint("Symmetric", 1, 2, 10, 2, -1, 1),
    Sketcher.Constraint("Symmetric", 4, 2, 7, 2, -1),
    Sketcher.Constraint("PointOnObject", 0, 2, -2),
    Sketcher.Constraint("Vertical", 2, 2, 9, 2),
    Sketcher.Constraint("Vertical", 6, 2, 12, 2),
    Sketcher.Constraint("Vertical", 5, 2, 13, 2),
    Sketcher.Constraint("Equal", 4, 8),
    Sketcher.Constraint("DistanceY", 1, 2, 1, 1, Q("11 mm")),
    Sketcher.Constraint("DistanceX", 3, 2, -1, 1, Q("50 mm")),
    Sketcher.Constraint("DistanceX", 6, 1, 6, 2, Q("21 mm")),
    Sketcher.Constraint("DistanceY", 4, 1, 4, 2, Q("2 mm")),
    Sketcher.Constraint("Angle", 3, Q("160 deg")),
    Sketcher.Constraint("DistanceX", 0, 1, 0, 2, Q("7.2 mm")),
    Sketcher.Constraint("DistanceY", 4, 2, 7, 2, Q("35 mm")),
])
pocket7 = doc.addObject("PartDesign::Pocket", "Pocket006")
body.addObject(pocket7)
pocket7.Profile = sketch11
pocket7.Length = 30
pocket7.Reversed = True

sketch12 = doc.addObject("Sketcher::SketchObject", "Sketch011")
body.addObject(sketch12)
sketch12.AttachmentSupport = (doc.XZ_Plane, [""])
sketch12.MapMode = "FlatFace"
sketch12.addGeometry([
    Part.LineSegment(Vector(-50, -18, 0), Vector(-50, 18, 0)),
    Part.LineSegment(Vector(-50, 18, 0), Vector(-36, 18, 0)),
    Part.LineSegment(Vector(-36, 18, 0), Vector(-36, -18, 0)),
    Part.LineSegment(Vector(-36, -17, 0), Vector(-50, -18, 0)),
], False)
sketch12.addConstraint([
    Sketcher.Constraint("Coincident", 0, 2, 1, 1),
    Sketcher.Constraint("Coincident", 1, 2, 2, 1),
    Sketcher.Constraint("Coincident", 2, 2, 3, 1),
    Sketcher.Constraint("Coincident", 3, 2, 0, 1),
    Sketcher.Constraint("Vertical", 0),
    Sketcher.Constraint("Horizontal", 1),
    Sketcher.Constraint("Vertical", 2),
    Sketcher.Constraint("Horizontal", 3),
    Sketcher.Constraint("DistanceY", 0, 1, 0, 2, Q("35 mm")),
    Sketcher.Constraint("DistanceX", 1, 1, 1, 2, Q("14.5 mm")),
    Sketcher.Constraint("DistanceX", 0, 2, -1, 1, Q("50 mm")),
    Sketcher.Constraint("DistanceY", -1, 1, 0, 2, Q("17.5 mm")),
])
pocket8 = doc.addObject("PartDesign::Pocket", "Pocket007")
body.addObject(pocket8)
pocket8.Profile = sketch12
pocket8.Type = "ThroughAll"
pocket8.Reversed = True

sketch13 = doc.addObject("Sketcher::SketchObject", "Sketch012")
body.addObject(sketch13)
sketch13.AttachmentSupport = (doc.XY_Plane, [""])
sketch13.MapMode = "FlatFace"
sketch13.AttachmentOffset = App.Placement(Vector(0, 0, 17.5), App.Rotation())
sketch13.addGeometry([
    Part.LineSegment(Vector(-2.8, 0, 0), Vector(-2.8, -16, 0)),
    Part.LineSegment(Vector(-2.8, -16, 0), Vector(0, -16, 0)),
    Part.LineSegment(Vector(0, -16, 0), Vector(0, 0, 0)),
    Part.LineSegment(Vector(0, 0, 0), Vector(-2.8, 0, 0)),
], False)
sketch13.addConstraint([
    Sketcher.Constraint("Coincident", 0, 2, 1, 1),
    Sketcher.Constraint("Coincident", 1, 2, 2, 1),
    Sketcher.Constraint("Coincident", 2, 2, 3, 1),
    Sketcher.Constraint("Coincident", 3, 2, 0, 1),
    Sketcher.Constraint("Vertical", 0),
    Sketcher.Constraint("Horizontal", 1),
    Sketcher.Constraint("Vertical", 2),
    Sketcher.Constraint("Horizontal", 3),
    Sketcher.Constraint("Coincident", 2, 2, -1, 1),
    Sketcher.Constraint("DistanceX", 1, 1, 1, 2, Q("2.8 mm")),
    Sketcher.Constraint("DistanceY", 0, 2, 0, 1, Q("16 mm")),
])
pocket9 = doc.addObject("PartDesign::Pocket", "Pocket008")
body.addObject(pocket9)
pocket9.Profile = sketch13
pocket9.Length = 35

doc.recompute()
